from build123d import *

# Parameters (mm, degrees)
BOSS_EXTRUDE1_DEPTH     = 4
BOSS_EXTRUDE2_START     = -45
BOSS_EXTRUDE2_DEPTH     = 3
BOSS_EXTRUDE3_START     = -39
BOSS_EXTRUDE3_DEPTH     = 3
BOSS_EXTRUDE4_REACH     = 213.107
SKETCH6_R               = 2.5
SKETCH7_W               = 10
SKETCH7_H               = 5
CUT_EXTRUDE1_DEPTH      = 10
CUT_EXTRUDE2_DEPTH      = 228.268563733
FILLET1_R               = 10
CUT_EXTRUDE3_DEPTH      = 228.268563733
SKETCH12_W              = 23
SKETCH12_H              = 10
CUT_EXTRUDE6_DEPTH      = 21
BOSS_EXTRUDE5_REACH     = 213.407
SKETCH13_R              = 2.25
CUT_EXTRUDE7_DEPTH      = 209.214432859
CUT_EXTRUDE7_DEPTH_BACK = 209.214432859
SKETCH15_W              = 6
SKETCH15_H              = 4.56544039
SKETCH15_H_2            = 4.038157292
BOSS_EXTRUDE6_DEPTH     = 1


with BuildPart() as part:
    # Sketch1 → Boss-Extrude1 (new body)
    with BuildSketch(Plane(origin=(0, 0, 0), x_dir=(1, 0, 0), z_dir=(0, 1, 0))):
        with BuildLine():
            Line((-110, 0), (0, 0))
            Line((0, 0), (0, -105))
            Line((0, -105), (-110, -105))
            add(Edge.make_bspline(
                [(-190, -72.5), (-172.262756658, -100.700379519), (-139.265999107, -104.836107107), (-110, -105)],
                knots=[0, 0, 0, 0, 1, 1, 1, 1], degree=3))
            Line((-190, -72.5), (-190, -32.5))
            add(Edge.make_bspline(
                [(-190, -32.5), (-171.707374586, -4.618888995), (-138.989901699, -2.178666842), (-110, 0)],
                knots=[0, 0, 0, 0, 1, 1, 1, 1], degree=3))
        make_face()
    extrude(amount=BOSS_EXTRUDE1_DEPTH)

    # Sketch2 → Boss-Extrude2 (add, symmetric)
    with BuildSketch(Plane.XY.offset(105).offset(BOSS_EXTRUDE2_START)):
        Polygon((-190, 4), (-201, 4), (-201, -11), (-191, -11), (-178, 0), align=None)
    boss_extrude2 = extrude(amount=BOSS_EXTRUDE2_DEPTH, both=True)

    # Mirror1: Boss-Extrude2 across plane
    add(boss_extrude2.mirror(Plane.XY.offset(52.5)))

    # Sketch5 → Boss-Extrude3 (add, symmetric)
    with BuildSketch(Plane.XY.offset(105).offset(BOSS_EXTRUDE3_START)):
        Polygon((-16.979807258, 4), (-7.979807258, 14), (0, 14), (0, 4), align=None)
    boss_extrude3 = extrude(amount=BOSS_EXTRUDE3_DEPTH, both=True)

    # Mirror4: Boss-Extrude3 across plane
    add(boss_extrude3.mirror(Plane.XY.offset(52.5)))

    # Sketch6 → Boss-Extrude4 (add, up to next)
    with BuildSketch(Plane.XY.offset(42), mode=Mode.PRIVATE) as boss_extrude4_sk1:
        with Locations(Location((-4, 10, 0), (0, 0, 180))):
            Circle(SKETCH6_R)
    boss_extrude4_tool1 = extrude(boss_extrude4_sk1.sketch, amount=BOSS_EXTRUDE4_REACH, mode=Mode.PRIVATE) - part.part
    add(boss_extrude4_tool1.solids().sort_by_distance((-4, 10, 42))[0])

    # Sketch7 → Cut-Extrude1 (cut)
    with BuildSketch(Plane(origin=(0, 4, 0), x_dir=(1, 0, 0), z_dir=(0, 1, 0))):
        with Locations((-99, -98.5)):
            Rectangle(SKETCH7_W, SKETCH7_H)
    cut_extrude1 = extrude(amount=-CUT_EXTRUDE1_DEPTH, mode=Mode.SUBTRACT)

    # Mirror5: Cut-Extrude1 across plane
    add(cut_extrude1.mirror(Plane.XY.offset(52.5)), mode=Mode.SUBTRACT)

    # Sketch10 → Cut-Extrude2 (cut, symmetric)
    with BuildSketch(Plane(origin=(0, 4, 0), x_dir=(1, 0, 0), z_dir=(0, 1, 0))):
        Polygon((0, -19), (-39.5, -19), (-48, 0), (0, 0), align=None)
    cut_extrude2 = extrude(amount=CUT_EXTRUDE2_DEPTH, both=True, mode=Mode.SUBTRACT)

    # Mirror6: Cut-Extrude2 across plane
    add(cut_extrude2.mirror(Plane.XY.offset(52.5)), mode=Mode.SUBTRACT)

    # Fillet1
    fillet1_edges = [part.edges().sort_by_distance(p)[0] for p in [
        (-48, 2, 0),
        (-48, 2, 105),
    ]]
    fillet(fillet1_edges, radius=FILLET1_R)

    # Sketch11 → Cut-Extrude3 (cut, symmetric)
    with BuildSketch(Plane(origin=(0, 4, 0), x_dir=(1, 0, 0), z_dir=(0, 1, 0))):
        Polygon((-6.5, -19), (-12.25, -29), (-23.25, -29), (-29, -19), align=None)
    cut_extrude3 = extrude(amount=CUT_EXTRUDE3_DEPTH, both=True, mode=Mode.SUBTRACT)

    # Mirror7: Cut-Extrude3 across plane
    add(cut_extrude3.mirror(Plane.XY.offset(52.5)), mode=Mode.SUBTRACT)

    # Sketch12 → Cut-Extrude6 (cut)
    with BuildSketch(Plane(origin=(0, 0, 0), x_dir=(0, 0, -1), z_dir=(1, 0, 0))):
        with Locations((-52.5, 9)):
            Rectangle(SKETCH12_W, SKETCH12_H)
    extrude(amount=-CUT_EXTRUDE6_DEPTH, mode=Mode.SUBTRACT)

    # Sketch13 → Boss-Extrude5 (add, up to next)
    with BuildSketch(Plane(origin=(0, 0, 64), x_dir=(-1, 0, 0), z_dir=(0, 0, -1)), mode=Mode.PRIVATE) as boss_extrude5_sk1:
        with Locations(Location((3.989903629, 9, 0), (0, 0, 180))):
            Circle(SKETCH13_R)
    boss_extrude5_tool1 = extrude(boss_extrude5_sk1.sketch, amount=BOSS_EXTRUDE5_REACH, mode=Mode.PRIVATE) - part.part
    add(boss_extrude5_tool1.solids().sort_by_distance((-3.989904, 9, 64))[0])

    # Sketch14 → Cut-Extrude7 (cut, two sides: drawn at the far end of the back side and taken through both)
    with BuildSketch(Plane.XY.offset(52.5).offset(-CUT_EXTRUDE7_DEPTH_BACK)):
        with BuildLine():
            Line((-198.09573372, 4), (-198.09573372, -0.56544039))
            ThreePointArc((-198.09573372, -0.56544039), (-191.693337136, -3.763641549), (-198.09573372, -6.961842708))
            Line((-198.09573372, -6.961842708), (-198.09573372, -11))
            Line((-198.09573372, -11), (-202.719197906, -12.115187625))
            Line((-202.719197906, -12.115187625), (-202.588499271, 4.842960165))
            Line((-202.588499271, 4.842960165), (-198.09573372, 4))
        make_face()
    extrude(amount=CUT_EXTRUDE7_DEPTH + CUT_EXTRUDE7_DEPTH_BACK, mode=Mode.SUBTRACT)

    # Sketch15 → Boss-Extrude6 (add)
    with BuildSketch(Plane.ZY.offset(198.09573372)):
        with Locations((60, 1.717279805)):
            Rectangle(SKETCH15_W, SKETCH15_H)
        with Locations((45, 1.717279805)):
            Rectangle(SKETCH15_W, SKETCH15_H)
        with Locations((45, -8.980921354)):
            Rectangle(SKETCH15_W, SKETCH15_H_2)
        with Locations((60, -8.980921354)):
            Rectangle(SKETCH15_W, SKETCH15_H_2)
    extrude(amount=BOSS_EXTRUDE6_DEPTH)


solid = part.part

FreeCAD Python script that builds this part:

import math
import FreeCAD as App
import Part
import Sketcher

V = App.Vector
Q = App.Units.Quantity


def edges_at(feature, points):
    """Names of the edges that pass closest to the given points."""
    edges = feature.Shape.Edges
    near = lambda p: min(range(len(edges)), key=lambda i: edges[i].distToShape(Part.Vertex(*p))[0])
    return sorted({f"Edge{near(p) + 1}" for p in points})

doc = App.newDocument("Part")
body = doc.addObject("PartDesign::Body", "Body")

# Sketch on XZ plane
sketch1 = body.newObject("Sketcher::SketchObject", "Sketch")
sketch1.AttachmentSupport = (doc.getObject("XZ_Plane"), [""])
sketch1.MapMode = "FlatFace"
sketch1.addGeometry([
    Part.LineSegment(V(0, 0, 0), V(-110, 0, 0)),  # 0
    Part.BSplineCurve([V(-190, 32.5, 0), V(-171.707375, 4.618889, 0), V(-138.989902, 2.178667, 0), V(-110, 0, 0)], [4, 4], [0, 1], False, 3, [1, 1, 1, 1], False),  # 1
    Part.LineSegment(V(-190, 32.5, 0), V(-190, 72.5, 0)),  # 2
    Part.BSplineCurve([V(-190, 72.5, 0), V(-172.262757, 100.70038, 0), V(-139.265999, 104.836107, 0), V(-110, 105, 0)], [4, 4], [0, 1], False, 3, [1, 1, 1, 1], False),  # 3
    Part.LineSegment(V(-110, 105, 0), V(0, 105, 0)),  # 4
    Part.LineSegment(V(0, 105, 0), V(0, 0, 0)),  # 5
], False)
sketch1.addConstraint([
    Sketcher.Constraint("Block", 1),
    Sketcher.Constraint("Block", 3),
    Sketcher.Constraint("Coincident", 0, 2, 1, 2),
    Sketcher.Constraint("Coincident", 1, 1, 2, 1),
    Sketcher.Constraint("Coincident", 2, 2, 3, 1),
    Sketcher.Constraint("Coincident", 3, 2, 4, 1),
    Sketcher.Constraint("Coincident", 4, 2, 5, 1),
    Sketcher.Constraint("Coincident", 5, 2, 0, 1),
    Sketcher.Constraint("Horizontal", 0),
    Sketcher.Constraint("Horizontal", 4),
    Sketcher.Constraint("Vertical", 5),
    Sketcher.Constraint("PointOnObject", 4, 2, -2),
])
pad1 = body.newObject("PartDesign::Pad", "Pad")
pad1.Profile = sketch1
pad1.Length = 4
pad1.Reversed = True

# Sketch on XY plane
sketch2 = body.newObject("Sketcher::SketchObject", "Sketch001")
sketch2.AttachmentSupport = (doc.getObject("XY_Plane"), [""])
sketch2.MapMode = "FlatFace"
sketch2.AttachmentOffset = App.Placement(V(0, 0, 60), App.Rotation())
sketch2.addGeometry([
    Part.LineSegment(V(-190, 4, 0), V(-201, 4, 0)),  # 0
    Part.LineSegment(V(-201, 4, 0), V(-201, -11, 0)),  # 1
    Part.LineSegment(V(-201, -11, 0), V(-191, -11, 0)),  # 2
    Part.LineSegment(V(-191, -11, 0), V(-178, 0, 0)),  # 3
    Part.LineSegment(V(-178, 0, 0), V(-190, 4, 0)),  # 4
], False)
sketch2.addConstraint([
    Sketcher.Constraint("Coincident", 0, 2, 1, 1),
    Sketcher.Constraint("Coincident", 1, 2, 2, 1),
    Sketcher.Constraint("Coincident", 2, 2, 3, 1),
    Sketcher.Constraint("Coincident", 3, 2, 4, 1),
    Sketcher.Constraint("Coincident", 4, 2, 0, 1),
    Sketcher.Constraint("Horizontal", 0),
    Sketcher.Constraint("Vertical", 1),
    Sketcher.Constraint("Horizontal", 2),
    Sketcher.Constraint("PointOnObject", 3, 2, -1),
    Sketcher.Constraint("DistanceX", 0, 2, 0, 1, Q("11 mm")),
    Sketcher.Constraint("DistanceX", 2, 1, 2, 2, Q("10 mm")),
    Sketcher.Constraint("DistanceY", 1, 2, 1, 1, Q("15 mm")),
    Sketcher.Constraint("DistanceX", 0, 2, -1, 1, Q("201 mm")),
    Sketcher.Constraint("DistanceY", -1, 1, 0, 2, Q("4 mm")),
    Sketcher.Constraint("DistanceX", 3, 2, -1, 1, Q("178 mm")),
])
pad2 = body.newObject("PartDesign::Pad", "Pad001")
pad2.Profile = sketch2
pad2.Length = 6
pad2.Midplane = True
doc.recompute()

datumplane = body.newObject("PartDesign::Plane", "DatumPlane")
datumplane.AttachmentSupport = (doc.getObject("XY_Plane"), [""])
datumplane.MapMode = "FlatFace"
datumplane.AttachmentOffset = App.Placement(V(0, 0, 52.5), App.Rotation())
mirrored = body.newObject("PartDesign::Mirrored", "Mirrored")
mirrored.Originals = [pad2]
mirrored.MirrorPlane = (datumplane, [""])
body.Tip = mirrored

# Sketch on XY plane
sketch3 = body.newObject("Sketcher::SketchObject", "Sketch002")
sketch3.AttachmentSupport = (doc.getObject("XY_Plane"), [""])
sketch3.MapMode = "FlatFace"
sketch3.AttachmentOffset = App.Placement(V(0, 0, 66), App.Rotation())
sketch3.addGeometry([
    Part.LineSegment(V(-8, 14, 0), V(-17, 4, 0)),
    Part.LineSegment(V(-17, 4, 0), V(0, 4, 0)),
    Part.LineSegment(V(0, 4, 0), V(0, 14, 0)),
    Part.LineSegment(V(0, 14, 0), V(-8, 14, 0)),
], False)
sketch3.addConstraint([
    Sketcher.Constraint("Coincident", 0, 2, 1, 1),
    Sketcher.Constraint("Coincident", 1, 2, 2, 1),
    Sketcher.Constraint("Coincident", 2, 2, 3, 1),
    Sketcher.Constraint("Coincident", 3, 2, 0, 1),
    Sketcher.Constraint("Horizontal", 1),
    Sketcher.Constraint("Vertical", 2),
    Sketcher.Constraint("Horizontal", 3),
    Sketcher.Constraint("PointOnObject", 1, 2, -2),
    Sketcher.Constraint("DistanceY", 2, 1, 2, 2, Q("10 mm")),
    Sketcher.Constraint("DistanceY", -1, 1, 0, 2, Q("4 mm")),
    Sketcher.Constraint("DistanceX", 0, 2, 3, 2, Q("9 mm")),
    Sketcher.Constraint("DistanceX", 1, 1, 1, 2, Q("16.979807 mm")),
])
pad3 = body.newObject("PartDesign::Pad", "Pad002")
pad3.Profile = sketch3
pad3.Length = 6
pad3.Midplane = True
doc.recompute()

datumplane2 = body.newObject("PartDesign::Plane", "DatumPlane001")
datumplane2.AttachmentSupport = (doc.getObject("XY_Plane"), [""])
datumplane2.MapMode = "FlatFace"
datumplane2.AttachmentOffset = App.Placement(V(0, 0, 52.5), App.Rotation())
mirrored2 = body.newObject("PartDesign::Mirrored", "Mirrored001")
mirrored2.Originals = [pad3]
mirrored2.MirrorPlane = (datumplane2, [""])
body.Tip = mirrored2

# Sketch on XY plane
sketch4 = body.newObject("Sketcher::SketchObject", "Sketch003")
sketch4.AttachmentSupport = (doc.getObject("XY_Plane"), [""])
sketch4.MapMode = "FlatFace"
sketch4.AttachmentOffset = App.Placement(V(0, 0, 42), App.Rotation())
sketch4.addGeometry(Part.Circle(V(-4, 10, 0), V(0, 0, 1), 2.5), False)
sketch4.addConstraint([
    Sketcher.Constraint("Diameter", 0, Q("5 mm")),
    Sketcher.Constraint("DistanceX", 0, 3, -1, 1, Q("4 mm")),
    Sketcher.Constraint("DistanceY", -1, 1, 0, 3, Q("10 mm")),
])
pad4 = body.newObject("PartDesign::Pad", "Pad003")
pad4.Profile = sketch4
pad4.Type = "UpToFirst"

# Sketch on XZ plane
sketch5 = body.newObject("Sketcher::SketchObject", "Sketch004")
sketch5.AttachmentSupport = (doc.getObject("XZ_Plane"), [""])
sketch5.MapMode = "FlatFace"
sketch5.AttachmentOffset = App.Placement(V(0, 0, -4), App.Rotation())
sketch5.addGeometry([
    Part.LineSegment(V(-104, 96, 0), V(-104, 101, 0)),
    Part.LineSegment(V(-104, 101, 0), V(-94, 101, 0)),
    Part.LineSegment(V(-94, 101, 0), V(-94, 96, 0)),
    Part.LineSegment(V(-94, 96, 0), V(-104, 96, 0)),
], False)
sketch5.addConstraint([
    Sketcher.Constraint("Coincident", 0, 2, 1, 1),
    Sketcher.Constraint("Coincident", 1, 2, 2, 1),
    Sketcher.Constraint("Coincident", 2, 2, 3, 1),
    Sketcher.Constraint("Coincident", 3, 2, 0, 1),
    Sketcher.Constraint("Vertical", 0),
    Sketcher.Constraint("Horizontal", 1),
    Sketcher.Constraint("Vertical", 2),
    Sketcher.Constraint("Horizontal", 3),
    Sketcher.Constraint("DistanceX", 1, 1, 1, 2, Q("10 mm")),
    Sketcher.Constraint("DistanceY", 0, 1, 0, 2, Q("5 mm")),
    Sketcher.Constraint("DistanceX", 0, 2, -1, 1, Q("104 mm")),
    Sketcher.Constraint("DistanceY", -1, 1, 0, 2, Q("101 mm")),
])
pocket1 = body.newObject("PartDesign::Pocket", "Pocket")
pocket1.Profile = sketch5
pocket1.Length = 10
pocket1.Reversed = True
doc.recompute()

datumplane3 = body.newObject("PartDesign::Plane", "DatumPlane002")
datumplane3.AttachmentSupport = (doc.getObject("XY_Plane"), [""])
datumplane3.MapMode = "FlatFace"
datumplane3.AttachmentOffset = App.Placement(V(0, 0, 52.5), App.Rotation())
mirrored3 = body.newObject("PartDesign::Mirrored", "Mirrored002")
mirrored3.Originals = [pocket1]
mirrored3.MirrorPlane = (datumplane3, [""])
body.Tip = mirrored3

# Sketch on XZ plane
sketch6 = body.newObject("Sketcher::SketchObject", "Sketch005")
sketch6.AttachmentSupport = (doc.getObject("XZ_Plane"), [""])
sketch6.MapMode = "FlatFace"
sketch6.AttachmentOffset = App.Placement(V(0, 0, -4), App.Rotation())
sketch6.addGeometry([
    Part.LineSegment(V(-40, 19, 0), V(0, 19, 0)),
    Part.LineSegment(V(0, 19, 0), V(0, 0, 0)),
    Part.LineSegment(V(0, 0, 0), V(-48, 0, 0)),
    Part.LineSegment(V(-48, 0, 0), V(-40, 19, 0)),
], False)
sketch6.addConstraint([
    Sketcher.Constraint("Coincident", 0, 2, 1, 1),
    Sketcher.Constraint("Coincident", 1, 2, 2, 1),
    Sketcher.Constraint("Coincident", 2, 2, 3, 1),
    Sketcher.Constraint("Coincident", 3, 2, 0, 1),
    Sketcher.Constraint("Horizontal", 0),
    Sketcher.Constraint("Vertical", 1),
    Sketcher.Constraint("Horizontal", 2),
    Sketcher.Constraint("Coincident", 1, 2, -1, 1),
    Sketcher.Constraint("DistanceX", 2, 2, 2, 1, Q("48 mm")),
    Sketcher.Constraint("DistanceY", 1, 2, 1, 1, Q("19 mm")),
    Sketcher.Constraint("DistanceX", 0, 1, 0, 2, Q("39.5 mm")),
])
pocket2 = body.newObject("PartDesign::Pocket", "Pocket001")
pocket2.Profile = sketch6
pocket2.Length = 456.537127
pocket2.Midplane = True
doc.recompute()

datumplane4 = body.newObject("PartDesign::Plane", "DatumPlane003")
datumplane4.AttachmentSupport = (doc.getObject("XY_Plane"), [""])
datumplane4.MapMode = "FlatFace"
datumplane4.AttachmentOffset = App.Placement(V(0, 0, 52.5), App.Rotation())
mirrored4 = body.newObject("PartDesign::Mirrored", "Mirrored003")
mirrored4.Originals = [pocket2]
mirrored4.MirrorPlane = (datumplane4, [""])
body.Tip = mirrored4
doc.recompute()

fillet = body.newObject("PartDesign::Fillet", "Fillet")
fillet.Base = (mirrored4, edges_at(mirrored4, [(-48, 2, 0), (-48, 2, 105)]))
fillet.Radius = 10

# Sketch on XZ plane
sketch7 = body.newObject("Sketcher::SketchObject", "Sketch006")
sketch7.AttachmentSupport = (doc.getObject("XZ_Plane"), [""])
sketch7.MapMode = "FlatFace"
sketch7.AttachmentOffset = App.Placement(V(0, 0, -4), App.Rotation())
sketch7.addGeometry([
    Part.LineSegment(V(-12, 29, 0), V(-6, 19, 0)),
    Part.LineSegment(V(-6, 19, 0), V(-29, 19, 0)),
    Part.LineSegment(V(-29, 19, 0), V(-23, 29, 0)),
    Part.LineSegment(V(-23, 29, 0), V(-12, 29, 0)),
], False)
sketch7.addConstraint([
    Sketcher.Constraint("Coincident", 0, 2, 1, 1),
    Sketcher.Constraint("Coincident", 1, 2, 2, 1),
    Sketcher.Constraint("Coincident", 2, 2, 3, 1),
    Sketcher.Constraint("Coincident", 3, 2, 0, 1),
    Sketcher.Constraint("Horizontal", 1),
    Sketcher.Constraint("Horizontal", 3),
    Sketcher.Constraint("Equal", 0, 2),
    Sketcher.Constraint("DistanceX", 3, 1, 3, 2, Q("11 mm")),
    Sketcher.Constraint("DistanceX", 1, 2, 1, 1, Q("22.5 mm")),
    Sketcher.Constraint("DistanceY", -1, 1, 0, 2, Q("19 mm")),
    Sketcher.Constraint("DistanceX", 1, 2, -1, 1, Q("29 mm")),
    Sketcher.Constraint("DistanceY", -1, 1, 2, 2, Q("29 mm")),
])
pocket3 = body.newObject("PartDesign::Pocket", "Pocket002")
pocket3.Profile = sketch7
pocket3.Length = 456.537127
pocket3.Midplane = True
doc.recompute()

datumplane5 = body.newObject("PartDesign::Plane", "DatumPlane004")
datumplane5.AttachmentSupport = (doc.getObject("XY_Plane"), [""])
datumplane5.MapMode = "FlatFace"
datumplane5.AttachmentOffset = App.Placement(V(0, 0, 52.5), App.Rotation())
mirrored5 = body.newObject("PartDesign::Mirrored", "Mirrored004")
mirrored5.Originals = [pocket3]
mirrored5.MirrorPlane = (datumplane5, [""])
body.Tip = mirrored5

# Sketch on YZ plane
sketch8 = body.newObject("Sketcher::SketchObject", "Sketch007")
sketch8.AttachmentSupport = (doc.getObject("YZ_Plane"), [""])
sketch8.MapMode = "FlatFace"
sketch8.addGeometry([
    Part.LineSegment(V(14, 64, 0), V(4, 64, 0)),
    Part.LineSegment(V(4, 64, 0), V(4, 41, 0)),
    Part.LineSegment(V(4, 41, 0), V(14, 41, 0)),
    Part.LineSegment(V(14, 41, 0), V(14, 64, 0)),
], False)
sketch8.addConstraint([
    Sketcher.Constraint("Coincident", 0, 2, 1, 1),
    Sketcher.Constraint("Coincident", 1, 2, 2, 1),
    Sketcher.Constraint("Coincident", 2, 2, 3, 1),
    Sketcher.Constraint("Coincident", 3, 2, 0, 1),
    Sketcher.Constraint("Horizontal", 0),
    Sketcher.Constraint("Vertical", 1),
    Sketcher.Constraint("Horizontal", 2),
    Sketcher.Constraint("Vertical", 3),
    Sketcher.Constraint("DistanceX", 0, 2, 0, 1, Q("10 mm")),
    Sketcher.Constraint("DistanceY", 1, 2, 1, 1, Q("23 mm")),
    Sketcher.Constraint("DistanceX", -1, 1, 0, 2, Q("4 mm")),
    Sketcher.Constraint("DistanceY", -1, 1, 0, 2, Q("64 mm")),
])
pocket4 = body.newObject("PartDesign::Pocket", "Pocket003")
pocket4.Profile = sketch8
pocket4.Length = 21

# Sketch on XY plane
sketch9 = body.newObject("Sketcher::SketchObject", "Sketch008")
sketch9.AttachmentSupport = (doc.getObject("XY_Plane"), [""])
sketch9.MapMode = "FlatFace"
sketch9.AttachmentOffset = App.Placement(V(0, 0, 64), App.Rotation())
sketch9.addGeometry(Part.Circle(V(-4, 9, 0), V(0, 0, 1), 2.2), False)
sketch9.addConstraint([
    Sketcher.Constraint("Diameter", 0, Q("4.5 mm")),
    Sketcher.Constraint("DistanceY", -1, 1, 0, 3, Q("9 mm")),
    Sketcher.Constraint("DistanceX", 0, 3, -1, 1, Q("3.989904 mm")),
])
pad5 = body.newObject("PartDesign::Pad", "Pad004")
pad5.Profile = sketch9
pad5.Type = "UpToFirst"
pad5.Reversed = True

# Sketch on XY plane
sketch10 = body.newObject("Sketcher::SketchObject", "Sketch009")
sketch10.AttachmentSupport = (doc.getObject("XY_Plane"), [""])
sketch10.MapMode = "FlatFace"
sketch10.AttachmentOffset = App.Placement(V(0, 0, 52.5), App.Rotation())
sketch10.addGeometry([
    Part.LineSegment(V(-198.1, -0.6, 0), V(-198.1, 4, 0)),  # 0
    Part.LineSegment(V(-198.1, 4, 0), V(-202.6, 4.8, 0)),  # 1
    Part.LineSegment(V(-202.6, 4.8, 0), V(-202.7, -12.1, 0)),  # 2
    Part.LineSegment(V(-202.7, -12.1, 0), V(-198.1, -11, 0)),  # 3
    Part.LineSegment(V(-198.1, -11, 0), V(-198.1, -7, 0)),  # 4
    Part.ArcOfCircle(Part.Circle(V(-195.7, -3.8, 0), V(0, 0, 1), 4), math.radians(-127), math.radians(127)),  # 5
], False)
sketch10.addConstraint([
    Sketcher.Constraint("Coincident", 0, 2, 1, 1),
    Sketcher.Constraint("Coincident", 1, 2, 2, 1),
    Sketcher.Constraint("Coincident", 2, 2, 3, 1),
    Sketcher.Constraint("Coincident", 3, 2, 4, 1),
    Sketcher.Constraint("Coincident", 4, 2, 5, 1),
    Sketcher.Constraint("Coincident", 5, 2, 0, 1),
    Sketcher.Constraint("Vertical", 0),
    Sketcher.Constraint("Vertical", 4),
    Sketcher.Constraint("Vertical", 0, 2, 3, 2),
    Sketcher.Constraint("Radius", 5, Q("4 mm")),
    Sketcher.Constraint("DistanceY", -1, 1, 0, 2, Q("4 mm")),
    Sketcher.Constraint("DistanceY", 3, 2, -1, 1, Q("11 mm")),
    Sketcher.Constraint("DistanceY", 0, 1, 0, 2, Q("4.56544 mm")),
    Sketcher.Constraint("DistanceX", 1, 2, -1, 1, Q("202.588499 mm")),
    Sketcher.Constraint("DistanceY", 5, 3, 1, 2, Q("8.606602 mm")),
    Sketcher.Constraint("DistanceX", 2, 2, 1, 2, Q("0.130699 mm")),
    Sketcher.Constraint("DistanceY", 4, 2, 5, 3, Q("3.198201 mm")),
    Sketcher.Constraint("Distance", 2, Q("16.958651 mm")),
    Sketcher.Constraint("DistanceX", 2, 2, 5, 3, Q("7.025861 mm")),
])
pocket5 = body.newObject("PartDesign::Pocket", "Pocket004")
pocket5.Profile = sketch10
pocket5.Type = "ThroughAll"
pocket5.Midplane = True

# Sketch on YZ plane
sketch11 = body.newObject("Sketcher::SketchObject", "Sketch010")
sketch11.AttachmentSupport = (doc.getObject("YZ_Plane"), [""])
sketch11.MapMode = "FlatFace"
sketch11.AttachmentOffset = App.Placement(V(0, 0, -198.095734), App.Rotation())
sketch11.addGeometry([
    Part.LineSegment(V(4, 57, 0), V(-0.6, 57, 0)),  # 0
    Part.LineSegment(V(-0.6, 57, 0), V(-0.6, 63, 0)),  # 1
    Part.LineSegment(V(-0.6, 63, 0), V(4, 63, 0)),  # 2
    Part.LineSegment(V(4, 63, 0), V(4, 57, 0)),  # 3
    Part.LineSegment(V(4, 42, 0), V(-0.6, 42, 0)),  # 4
    Part.LineSegment(V(-0.6, 42, 0), V(-0.6, 48, 0)),  # 5
    Part.LineSegment(V(-0.6, 48, 0), V(4, 48, 0)),  # 6
    Part.LineSegment(V(4, 48, 0), V(4, 42, 0)),  # 7
    Part.LineSegment(V(-7, 42, 0), V(-11, 42, 0)),  # 8
    Part.LineSegment(V(-11, 42, 0), V(-11, 48, 0)),  # 9
    Part.LineSegment(V(-11, 48, 0), V(-7, 48, 0)),  # 10
    Part.LineSegment(V(-7, 48, 0), V(-7, 42, 0)),  # 11
    Part.LineSegment(V(-7, 57, 0), V(-11, 57, 0)),  # 12
    Part.LineSegment(V(-11, 57, 0), V(-11, 63, 0)),  # 13
    Part.LineSegment(V(-11, 63, 0), V(-7, 63, 0)),  # 14
    Part.LineSegment(V(-7, 63, 0), V(-7, 57, 0)),  # 15
], False)
sketch11.addConstraint([
    Sketcher.Constraint("Coincident", 0, 2, 1, 1),
    Sketcher.Constraint("Coincident", 1, 2, 2, 1),
    Sketcher.Constraint("Coincident", 2, 2, 3, 1),
    Sketcher.Constraint("Coincident", 3, 2, 0, 1),
    Sketcher.Constraint("Coincident", 4, 2, 5, 1),
    Sketcher.Constraint("Coincident", 5, 2, 6, 1),
    Sketcher.Constraint("Coincident", 6, 2, 7, 1),
    Sketcher.Constraint("Coincident", 7, 2, 4, 1),
    Sketcher.Constraint("Coincident", 8, 2, 9, 1),
    Sketcher.Constraint("Coincident", 9, 2, 10, 1),
    Sketcher.Constraint("Coincident", 10, 2, 11, 1),
    Sketcher.Constraint("Coincident", 11, 2, 8, 1),
    Sketcher.Constraint("Coincident", 12, 2, 13, 1),
    Sketcher.Constraint("Coincident", 13, 2, 14, 1),
    Sketcher.Constraint("Coincident", 14, 2, 15, 1),
    Sketcher.Constraint("Coincident", 15, 2, 12, 1),
    Sketcher.Constraint("Horizontal", 0),
    Sketcher.Constraint("Vertical", 1),
    Sketcher.Constraint("Horizontal", 2),
    Sketcher.Constraint("Vertical", 3),
    Sketcher.Constraint("Horizontal", 4),
    Sketcher.Constraint("Vertical", 5),
    Sketcher.Constraint("Horizontal", 6),
    Sketcher.Constraint("Vertical", 7),
    Sketcher.Constraint("Horizontal", 8),
    Sketcher.Constraint("Vertical", 9),
    Sketcher.Constraint("Horizontal", 10),
    Sketcher.Constraint("Vertical", 11),
    Sketcher.Constraint("Horizontal", 12),
    Sketcher.Constraint("Vertical", 13),
    Sketcher.Constraint("Horizontal", 14),
    Sketcher.Constraint("Vertical", 15),
    Sketcher.Constraint("Horizontal", 7, 2, 8, 2),
    Sketcher.Constraint("Horizontal", 6, 2, 9, 2),
    Sketcher.Constraint("Horizontal", 3, 2, 12, 2),
    Sketcher.Constraint("Horizontal", 2, 2, 13, 2),
    Sketcher.Constraint("Vertical", 1, 2, 4, 2),
    Sketcher.Constraint("Vertical", 3, 2, 6, 2),
    Sketcher.Constraint("Vertical", 9, 2, 12, 2),
    Sketcher.Constraint("Vertical", 11, 2, 14, 2),
    Sketcher.Constraint("Equal", 3, 5),
    Sketcher.Constraint("DistanceY", 1, 1, 1, 2, Q("6 mm")),
    Sketcher.Constraint("DistanceY", -1, 1, 0, 2, Q("57 mm")),
    Sketcher.Constraint("DistanceX", -1, 1, 2, 2, Q("4 mm")),
    Sketcher.Constraint("DistanceY", -1, 1, 4, 2, Q("42 mm")),
    Sketcher.Constraint("DistanceX", 8, 2, -1, 1, Q("11 mm")),
    Sketcher.Constraint("DistanceX", 0, 2, 0, 1, Q("4.56544 mm")),
    Sketcher.Constraint("DistanceX", 8, 2, 8, 1, Q("4.038157 mm")),
])
pad6 = body.newObject("PartDesign::Pad", "Pad005")
pad6.Profile = sketch11
pad6.Length = 1
pad6.Reversed = True

doc.recompute()
